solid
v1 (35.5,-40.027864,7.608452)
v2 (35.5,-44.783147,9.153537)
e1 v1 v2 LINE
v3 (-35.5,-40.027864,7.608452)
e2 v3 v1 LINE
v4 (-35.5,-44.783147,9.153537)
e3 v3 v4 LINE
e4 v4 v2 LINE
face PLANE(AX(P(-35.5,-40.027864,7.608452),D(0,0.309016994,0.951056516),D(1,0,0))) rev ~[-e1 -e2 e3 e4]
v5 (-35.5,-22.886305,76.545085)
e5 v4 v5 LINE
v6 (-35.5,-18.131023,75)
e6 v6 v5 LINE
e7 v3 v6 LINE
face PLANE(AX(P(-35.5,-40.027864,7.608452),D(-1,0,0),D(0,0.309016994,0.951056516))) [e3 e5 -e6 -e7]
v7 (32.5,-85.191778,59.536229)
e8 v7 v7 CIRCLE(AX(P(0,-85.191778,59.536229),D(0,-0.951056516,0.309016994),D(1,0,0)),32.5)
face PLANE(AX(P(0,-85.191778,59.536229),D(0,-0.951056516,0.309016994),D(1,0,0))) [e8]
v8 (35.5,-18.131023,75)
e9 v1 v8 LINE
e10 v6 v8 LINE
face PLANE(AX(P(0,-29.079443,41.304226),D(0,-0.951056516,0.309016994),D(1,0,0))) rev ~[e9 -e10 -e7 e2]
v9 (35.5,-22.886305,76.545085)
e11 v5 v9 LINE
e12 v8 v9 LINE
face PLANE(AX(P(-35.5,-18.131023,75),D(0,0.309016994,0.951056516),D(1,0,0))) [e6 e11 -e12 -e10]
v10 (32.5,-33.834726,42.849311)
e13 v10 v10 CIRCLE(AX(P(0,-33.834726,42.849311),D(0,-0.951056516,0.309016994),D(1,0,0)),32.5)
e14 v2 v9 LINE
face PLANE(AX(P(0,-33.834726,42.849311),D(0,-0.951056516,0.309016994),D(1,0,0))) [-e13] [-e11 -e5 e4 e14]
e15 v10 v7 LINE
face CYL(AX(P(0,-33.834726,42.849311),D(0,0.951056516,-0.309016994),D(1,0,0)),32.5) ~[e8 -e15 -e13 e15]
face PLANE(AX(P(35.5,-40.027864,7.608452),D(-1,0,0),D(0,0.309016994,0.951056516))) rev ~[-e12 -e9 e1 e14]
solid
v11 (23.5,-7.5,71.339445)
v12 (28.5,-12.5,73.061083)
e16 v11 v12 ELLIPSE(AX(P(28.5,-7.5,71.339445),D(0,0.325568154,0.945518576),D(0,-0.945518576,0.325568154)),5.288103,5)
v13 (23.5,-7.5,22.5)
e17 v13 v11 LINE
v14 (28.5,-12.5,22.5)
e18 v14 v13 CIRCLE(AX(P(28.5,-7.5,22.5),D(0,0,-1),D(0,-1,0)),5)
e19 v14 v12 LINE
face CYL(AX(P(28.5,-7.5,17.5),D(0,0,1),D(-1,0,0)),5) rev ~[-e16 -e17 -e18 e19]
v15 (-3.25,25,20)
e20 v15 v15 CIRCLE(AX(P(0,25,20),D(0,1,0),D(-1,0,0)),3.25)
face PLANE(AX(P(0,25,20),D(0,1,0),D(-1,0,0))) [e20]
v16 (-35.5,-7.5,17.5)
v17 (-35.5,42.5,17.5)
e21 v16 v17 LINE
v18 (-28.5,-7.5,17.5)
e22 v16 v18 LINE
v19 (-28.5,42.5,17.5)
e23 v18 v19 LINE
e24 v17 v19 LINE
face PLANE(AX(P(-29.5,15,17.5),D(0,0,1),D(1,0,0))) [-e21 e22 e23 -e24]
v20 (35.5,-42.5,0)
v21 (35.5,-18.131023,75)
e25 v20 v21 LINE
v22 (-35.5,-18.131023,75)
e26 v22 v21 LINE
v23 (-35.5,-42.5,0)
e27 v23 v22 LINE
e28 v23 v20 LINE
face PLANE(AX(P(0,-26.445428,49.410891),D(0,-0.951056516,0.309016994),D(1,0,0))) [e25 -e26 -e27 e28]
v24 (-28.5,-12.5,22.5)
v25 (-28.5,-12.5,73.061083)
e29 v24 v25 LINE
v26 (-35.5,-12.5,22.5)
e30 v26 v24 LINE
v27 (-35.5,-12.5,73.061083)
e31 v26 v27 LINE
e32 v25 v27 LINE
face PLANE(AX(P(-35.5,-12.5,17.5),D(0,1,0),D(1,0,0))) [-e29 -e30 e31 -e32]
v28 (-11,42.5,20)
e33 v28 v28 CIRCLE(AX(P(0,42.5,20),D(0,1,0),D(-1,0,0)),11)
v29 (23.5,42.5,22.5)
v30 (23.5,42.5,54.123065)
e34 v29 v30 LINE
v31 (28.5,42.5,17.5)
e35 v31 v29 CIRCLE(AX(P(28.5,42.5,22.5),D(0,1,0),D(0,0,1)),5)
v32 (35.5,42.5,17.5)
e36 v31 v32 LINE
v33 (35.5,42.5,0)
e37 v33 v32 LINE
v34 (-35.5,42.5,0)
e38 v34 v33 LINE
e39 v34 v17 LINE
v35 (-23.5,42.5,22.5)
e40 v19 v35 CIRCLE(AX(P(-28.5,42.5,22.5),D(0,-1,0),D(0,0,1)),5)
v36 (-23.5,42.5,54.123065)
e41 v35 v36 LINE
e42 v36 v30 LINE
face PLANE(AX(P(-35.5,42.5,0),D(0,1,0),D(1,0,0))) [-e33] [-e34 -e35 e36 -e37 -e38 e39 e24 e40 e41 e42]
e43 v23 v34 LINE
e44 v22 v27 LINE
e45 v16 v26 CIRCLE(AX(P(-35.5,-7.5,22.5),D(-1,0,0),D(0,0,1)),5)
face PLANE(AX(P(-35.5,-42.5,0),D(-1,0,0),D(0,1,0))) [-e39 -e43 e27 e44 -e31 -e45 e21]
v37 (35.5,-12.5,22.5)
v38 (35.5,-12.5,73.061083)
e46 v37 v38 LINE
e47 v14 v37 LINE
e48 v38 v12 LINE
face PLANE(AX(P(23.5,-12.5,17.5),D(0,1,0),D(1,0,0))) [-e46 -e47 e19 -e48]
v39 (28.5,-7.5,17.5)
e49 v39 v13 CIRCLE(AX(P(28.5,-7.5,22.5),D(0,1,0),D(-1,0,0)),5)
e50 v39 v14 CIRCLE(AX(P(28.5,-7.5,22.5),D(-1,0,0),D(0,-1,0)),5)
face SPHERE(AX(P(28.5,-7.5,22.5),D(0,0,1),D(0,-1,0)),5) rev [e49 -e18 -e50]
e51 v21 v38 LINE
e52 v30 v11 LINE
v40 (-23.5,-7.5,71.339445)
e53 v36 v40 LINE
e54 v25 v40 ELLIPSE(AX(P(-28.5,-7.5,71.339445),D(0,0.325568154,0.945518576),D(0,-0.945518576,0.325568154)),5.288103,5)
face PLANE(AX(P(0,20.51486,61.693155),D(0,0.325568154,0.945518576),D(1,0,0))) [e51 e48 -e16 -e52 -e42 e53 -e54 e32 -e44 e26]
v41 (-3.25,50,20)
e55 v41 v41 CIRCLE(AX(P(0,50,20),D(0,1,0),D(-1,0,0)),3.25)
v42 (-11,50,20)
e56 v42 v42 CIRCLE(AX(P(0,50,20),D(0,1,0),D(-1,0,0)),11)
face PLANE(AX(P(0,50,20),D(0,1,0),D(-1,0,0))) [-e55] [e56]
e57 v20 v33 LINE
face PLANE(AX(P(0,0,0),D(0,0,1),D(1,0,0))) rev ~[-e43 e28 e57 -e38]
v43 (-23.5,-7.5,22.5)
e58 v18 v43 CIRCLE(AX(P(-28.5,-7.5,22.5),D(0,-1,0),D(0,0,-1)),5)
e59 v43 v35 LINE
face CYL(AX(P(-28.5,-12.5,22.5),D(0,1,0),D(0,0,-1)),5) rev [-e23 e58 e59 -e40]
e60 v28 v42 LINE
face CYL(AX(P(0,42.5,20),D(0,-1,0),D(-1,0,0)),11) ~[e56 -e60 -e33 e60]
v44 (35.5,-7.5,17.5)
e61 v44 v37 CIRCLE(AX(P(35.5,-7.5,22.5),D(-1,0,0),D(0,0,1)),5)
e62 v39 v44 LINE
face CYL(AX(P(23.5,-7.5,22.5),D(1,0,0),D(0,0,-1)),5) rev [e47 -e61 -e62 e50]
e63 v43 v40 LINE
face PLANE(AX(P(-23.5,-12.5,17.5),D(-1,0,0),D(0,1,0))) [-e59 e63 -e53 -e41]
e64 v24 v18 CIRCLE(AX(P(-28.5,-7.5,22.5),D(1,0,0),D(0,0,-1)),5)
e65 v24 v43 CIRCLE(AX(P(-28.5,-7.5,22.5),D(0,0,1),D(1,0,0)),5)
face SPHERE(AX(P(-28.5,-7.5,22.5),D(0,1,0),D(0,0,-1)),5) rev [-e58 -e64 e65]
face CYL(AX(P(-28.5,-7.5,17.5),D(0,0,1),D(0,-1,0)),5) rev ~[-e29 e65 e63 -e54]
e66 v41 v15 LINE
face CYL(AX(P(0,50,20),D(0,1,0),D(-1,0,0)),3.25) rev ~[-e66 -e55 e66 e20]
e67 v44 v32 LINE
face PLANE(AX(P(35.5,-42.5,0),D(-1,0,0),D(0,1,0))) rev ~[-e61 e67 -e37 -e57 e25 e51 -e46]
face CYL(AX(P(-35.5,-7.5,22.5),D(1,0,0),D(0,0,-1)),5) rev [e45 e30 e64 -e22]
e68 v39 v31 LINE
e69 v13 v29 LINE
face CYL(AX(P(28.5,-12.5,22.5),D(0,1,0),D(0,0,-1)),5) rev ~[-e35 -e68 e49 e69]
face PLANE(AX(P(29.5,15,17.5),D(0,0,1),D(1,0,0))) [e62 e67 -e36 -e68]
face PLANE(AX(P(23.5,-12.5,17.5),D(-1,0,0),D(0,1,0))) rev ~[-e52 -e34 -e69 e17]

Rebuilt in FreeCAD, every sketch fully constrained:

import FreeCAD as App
import Part
import Sketcher

V = App.Vector
Q = App.Units.Quantity


def edges_at(feature, points):
    """Names of the edges that pass closest to the given points."""
    edges = feature.Shape.Edges
    near = lambda p: min(range(len(edges)), key=lambda i: edges[i].distToShape(Part.Vertex(*p))[0])
    return sorted({f"Edge{near(p) + 1}" for p in points})

doc = App.newDocument("Part")
params = doc.addObject("Spreadsheet::Sheet", "Params")
for row, (alias, value) in enumerate([
    ("sketch1_width", "71 mm"),
    ("sketch1_height", "85 mm"),
    ("pad1_length", "75 mm"),
    ("sketch2_width", "71 mm"),
    ("sketch3_width", "71 mm"),
    ("sketch4_width", "12 mm"),
    ("sketch4_height", "55 mm"),
    ("fillet_radius", "5 mm"),
    ("sketch5_diameter", "22 mm"),
    ("pad2_length", "7.5 mm"),
    ("sketch6_diameter", "6.5 mm"),
    ("pocket4_length", "25 mm"),
    ("sketch7_width", "71 mm"),
    ("pad3_length", "5 mm"),
    ("sketch8_diameter", "65 mm"),
    ("pad4_length", "54 mm"),
], start=1):
    params.set(f"A{row}", alias)
    params.set(f"B{row}", "=" + value)
    params.setAlias(f"B{row}", alias)

body = doc.addObject("PartDesign::Body", "Body")

# Sketch on XY plane
sketch1 = doc.addObject("Sketcher::SketchObject", "Sketch")
body.addObject(sketch1)
sketch1.AttachmentSupport = (doc.XY_Plane, [""])
sketch1.MapMode = "FlatFace"
sketch1.addGeometry([
    Part.LineSegment(V(-36, 42, 0), V(-36, -42, 0)),
    Part.LineSegment(V(-36, -42, 0), V(36, -42, 0)),
    Part.LineSegment(V(36, -42, 0), V(36, 42, 0)),
    Part.LineSegment(V(36, 42, 0), V(-36, 42, 0)),
], False)
sketch1.addConstraint([
    Sketcher.Constraint("Coincident", 0, 2, 1, 1),
    Sketcher.Constraint("Coincident", 1, 2, 2, 1),
    Sketcher.Constraint("Coincident", 2, 2, 3, 1),
    Sketcher.Constraint("Coincident", 3, 2, 0, 1),
    Sketcher.Constraint("Vertical", 0),
    Sketcher.Constraint("Horizontal", 1),
    Sketcher.Constraint("Vertical", 2),
    Sketcher.Constraint("Horizontal", 3),
    Sketcher.Constraint("Symmetric", 0, 2, 2, 2, -1, 1),
    Sketcher.Constraint("DistanceX", 1, 1, 1, 2, Q("71 mm")),
    Sketcher.Constraint("DistanceY", 0, 2, 0, 1, Q("85 mm")),
])
sketch1.setExpression("Constraints[9]", "Params.sketch1_width")
sketch1.setExpression("Constraints[10]", "Params.sketch1_height")
pad1 = doc.addObject("PartDesign::Pad", "Pad")
body.addObject(pad1)
pad1.Profile = sketch1
pad1.setExpression("Length", "Params.pad1_length")

# Sketch on an angled plane
sketch2 = doc.addObject("Sketcher::SketchObject", "Sketch001")
body.addObject(sketch2)
sketch2.Placement = App.Placement(V(0, -38.441611, 12.490437), App.Rotation(V(1, 0, 0), V(0, 0.309016994, 0.951056516), V(0, -0.951056516, 0.309016994), "ZXY"))
sketch2.addGeometry([
    Part.LineSegment(V(-36, 91, 0), V(-36, -13, 0)),
    Part.LineSegment(V(-36, -13, 0), V(36, -13, 0)),
    Part.LineSegment(V(36, -13, 0), V(36, 91, 0)),
    Part.LineSegment(V(36, 91, 0), V(-36, 91, 0)),
], False)
sketch2.addConstraint([
    Sketcher.Constraint("Coincident", 0, 2, 1, 1),
    Sketcher.Constraint("Coincident", 1, 2, 2, 1),
    Sketcher.Constraint("Coincident", 2, 2, 3, 1),
    Sketcher.Constraint("Coincident", 3, 2, 0, 1),
    Sketcher.Constraint("Vertical", 0),
    Sketcher.Constraint("Horizontal", 1),
    Sketcher.Constraint("Vertical", 2),
    Sketcher.Constraint("Horizontal", 3),
    Sketcher.Constraint("DistanceX", 1, 1, 1, 2, Q("71 mm")),
    Sketcher.Constraint("DistanceX", 0, 2, -1, 1, Q("35.5 mm")),
    Sketcher.Constraint("DistanceY", 0, 2, 0, 1, Q("103.907371 mm")),
    Sketcher.Constraint("DistanceY", -1, 1, 2, 2, Q("90.774149 mm")),
])
sketch2.setExpression("Constraints[8]", "Params.sketch2_width")
pocket1 = doc.addObject("PartDesign::Pocket", "Pocket")
body.addObject(pocket1)
pocket1.Profile = sketch2
pocket1.Type = "ThroughAll"
pocket1.Reversed = True

# Sketch on an angled plane
sketch3 = doc.addObject("Sketcher::SketchObject", "Sketch002")
body.addObject(sketch3)
sketch3.Placement = App.Placement(V(0, 21.165514, 61.469117), App.Rotation(V(1, 0, 0), V(0, 0.945518576, -0.325568154), V(0, 0.325568154, 0.945518576), "ZXY"))
sketch3.addGeometry([
    Part.LineSegment(V(-36, 40, 0), V(-36, -42, 0)),
    Part.LineSegment(V(-36, -42, 0), V(36, -42, 0)),
    Part.LineSegment(V(36, -42, 0), V(36, 40, 0)),
    Part.LineSegment(V(36, 40, 0), V(-36, 40, 0)),
], False)
sketch3.addConstraint([
    Sketcher.Constraint("Coincident", 0, 2, 1, 1),
    Sketcher.Constraint("Coincident", 1, 2, 2, 1),
    Sketcher.Constraint("Coincident", 2, 2, 3, 1),
    Sketcher.Constraint("Coincident", 3, 2, 0, 1),
    Sketcher.Constraint("Vertical", 0),
    Sketcher.Constraint("Horizontal", 1),
    Sketcher.Constraint("Vertical", 2),
    Sketcher.Constraint("Horizontal", 3),
    Sketcher.Constraint("DistanceX", 1, 1, 1, 2, Q("71 mm")),
    Sketcher.Constraint("DistanceX", 0, 2, -1, 1, Q("35.5 mm")),
    Sketcher.Constraint("DistanceY", 0, 2, 0, 1, Q("81.74537 mm")),
    Sketcher.Constraint("DistanceY", 0, 2, -1, 1, Q("41.56083 mm")),
])
sketch3.setExpression("Constraints[8]", "Params.sketch3_width")
pocket2 = doc.addObject("PartDesign::Pocket", "Pocket001")
body.addObject(pocket2)
pocket2.Profile = sketch3
pocket2.Type = "ThroughAll"
pocket2.Reversed = True

# Sketch on XY plane
sketch4 = doc.addObject("Sketcher::SketchObject", "Sketch003")
body.addObject(sketch4)
sketch4.AttachmentSupport = (doc.XY_Plane, [""])
sketch4.MapMode = "FlatFace"
sketch4.AttachmentOffset = App.Placement(V(0, 0, 17.5), App.Rotation())
sketch4.addGeometry([
    Part.LineSegment(V(-36, 42, 0), V(-36, -12, 0)),  # 0
    Part.LineSegment(V(-36, -12, 0), V(-24, -12, 0)),  # 1
    Part.LineSegment(V(-24, -12, 0), V(-24, 42, 0)),  # 2
    Part.LineSegment(V(-24, 42, 0), V(-36, 42, 0)),  # 3
    Part.LineSegment(V(24, 42, 0), V(24, -12, 0)),  # 4
    Part.LineSegment(V(24, -12, 0), V(36, -12, 0)),  # 5
    Part.LineSegment(V(36, -12, 0), V(36, 42, 0)),  # 6
    Part.LineSegment(V(36, 42, 0), V(24, 42, 0)),  # 7
], False)
sketch4.addConstraint([
    Sketcher.Constraint("Coincident", 0, 2, 1, 1),
    Sketcher.Constraint("Coincident", 1, 2, 2, 1),
    Sketcher.Constraint("Coincident", 2, 2, 3, 1),
    Sketcher.Constraint("Coincident", 3, 2, 0, 1),
    Sketcher.Constraint("Coincident", 4, 2, 5, 1),
    Sketcher.Constraint("Coincident", 5, 2, 6, 1),
    Sketcher.Constraint("Coincident", 6, 2, 7, 1),
    Sketcher.Constraint("Coincident", 7, 2, 4, 1),
    Sketcher.Constraint("Vertical", 0),
    Sketcher.Constraint("Horizontal", 1),
    Sketcher.Constraint("Vertical", 2),
    Sketcher.Constraint("Horizontal", 3),
    Sketcher.Constraint("Vertical", 4),
    Sketcher.Constraint("Horizontal", 5),
    Sketcher.Constraint("Vertical", 6),
    Sketcher.Constraint("Horizontal", 7),
    Sketcher.Constraint("Symmetric", 1, 2, 4, 2, -2),
    Sketcher.Constraint("Symmetric", 3, 2, 6, 2, -2),
    Sketcher.Constraint("DistanceX", 1, 1, 1, 2, Q("12 mm")),
    Sketcher.Constraint("DistanceY", 0, 2, 0, 1, Q("55 mm")),
    Sketcher.Constraint("DistanceX", 1, 2, 4, 2, Q("47 mm")),
    Sketcher.Constraint("DistanceY", 0, 2, -1, 1, Q("12.5 mm")),
])
sketch4.setExpression("Constraints[18]", "Params.sketch4_width")
sketch4.setExpression("Constraints[19]", "Params.sketch4_height")
pocket3 = doc.addObject("PartDesign::Pocket", "Pocket002")
body.addObject(pocket3)
pocket3.Profile = sketch4
pocket3.Type = "ThroughAll"
pocket3.Reversed = True
doc.recompute()

fillet = doc.addObject("PartDesign::Fillet", "Fillet")
body.addObject(fillet)
fillet.Base = (pocket3, edges_at(pocket3, [
    (-23.5, 15, 17.5),
    (-29.5, -12.5, 17.5),
    (-23.5, -12.5, 45.281),
    (23.5, -12.5, 45.281),
    (29.5, -12.5, 17.5),
    (23.5, 15, 17.5),
]))
fillet.setExpression("Radius", "Params.fillet_radius")

# Sketch on XZ plane
sketch5 = doc.addObject("Sketcher::SketchObject", "Sketch004")
body.addObject(sketch5)
sketch5.AttachmentSupport = (doc.XZ_Plane, [""])
sketch5.MapMode = "FlatFace"
sketch5.AttachmentOffset = App.Placement(V(0, 0, -42.5), App.Rotation())
sketch5.addGeometry(Part.Circle(V(0, 20, 0), V(0, 0, 1), 11), False)
sketch5.addConstraint([
    Sketcher.Constraint("PointOnObject", 0, 3, -2),
    Sketcher.Constraint("Diameter", 0, Q("22 mm")),
    Sketcher.Constraint("DistanceY", -1, 1, 0, 3, Q("20 mm")),
])
sketch5.setExpression("Constraints[1]", "Params.sketch5_diameter")
pad2 = doc.addObject("PartDesign::Pad", "Pad001")
body.addObject(pad2)
pad2.Profile = sketch5
pad2.setExpression("Length", "Params.pad2_length")
pad2.Reversed = True

# Sketch on XZ plane
sketch6 = doc.addObject("Sketcher::SketchObject", "Sketch005")
body.addObject(sketch6)
sketch6.AttachmentSupport = (doc.XZ_Plane, [""])
sketch6.MapMode = "FlatFace"
sketch6.AttachmentOffset = App.Placement(V(0, 0, -50), App.Rotation())
sketch6.addGeometry(Part.Circle(V(0, 20, 0), V(0, 0, 1), 3.2), False)
sketch6.addConstraint([
    Sketcher.Constraint("PointOnObject", 0, 3, -2),
    Sketcher.Constraint("Diameter", 0, Q("6.5 mm")),
    Sketcher.Constraint("DistanceY", -1, 1, 0, 3, Q("20 mm")),
])
sketch6.setExpression("Constraints[1]", "Params.sketch6_diameter")
pocket4 = doc.addObject("PartDesign::Pocket", "Pocket003")
body.addObject(pocket4)
pocket4.Profile = sketch6
pocket4.setExpression("Length", "Params.pocket4_length")
pocket4.Reversed = True
body2 = doc.addObject("PartDesign::Body", "Body001")

# Sketch on an angled plane
sketch7 = doc.addObject("Sketcher::SketchObject", "Sketch006")
body2.addObject(sketch7)
sketch7.Placement = App.Placement(V(0, -38.441611, 12.490437), App.Rotation(V(1, 0, 0), V(0, 0.309016994, 0.951056516), V(0, -0.951056516, 0.309016994), "ZXY"))
sketch7.addGeometry([
    Part.LineSegment(V(-36, 66, 0), V(-36, -5, 0)),
    Part.LineSegment(V(-36, -5, 0), V(36, -5, 0)),
    Part.LineSegment(V(36, -5, 0), V(36, 66, 0)),
    Part.LineSegment(V(36, 66, 0), V(-36, 66, 0)),
], False)
sketch7.addConstraint([
    Sketcher.Constraint("Coincident", 0, 2, 1, 1),
    Sketcher.Constraint("Coincident", 1, 2, 2, 1),
    Sketcher.Constraint("Coincident", 2, 2, 3, 1),
    Sketcher.Constraint("Coincident", 3, 2, 0, 1),
    Sketcher.Constraint("Vertical", 0),
    Sketcher.Constraint("Horizontal", 1),
    Sketcher.Constraint("Vertical", 2),
    Sketcher.Constraint("Horizontal", 3),
    Sketcher.Constraint("DistanceX", 1, 1, 1, 2, Q("71 mm")),
    Sketcher.Constraint("DistanceX", 0, 2, -1, 1, Q("35.5 mm")),
    Sketcher.Constraint("DistanceY", 0, 2, 0, 1, Q("70.859667 mm")),
    Sketcher.Constraint("DistanceY", 0, 2, -1, 1, Q("5.133222 mm")),
])
sketch7.setExpression("Constraints[8]", "Params.sketch7_width")
pad3 = doc.addObject("PartDesign::Pad", "Pad002")
body2.addObject(pad3)
pad3.Profile = sketch7
pad3.setExpression("Length", "Params.pad3_length")

# Sketch on an angled plane
sketch8 = doc.addObject("Sketcher::SketchObject", "Sketch007")
body2.addObject(sketch8)
sketch8.Placement = App.Placement(V(0, -43.196894, 14.035522), App.Rotation(V(1, 0, 0), V(0, 0.309016994, 0.951056516), V(0, -0.951056516, 0.309016994), "ZXY"))
sketch8.addGeometry(Part.Circle(V(0, 30, 0), V(0, 0, 1), 32), False)
sketch8.addConstraint([
    Sketcher.Constraint("PointOnObject", 0, 3, -2),
    Sketcher.Constraint("Diameter", 0, Q("65 mm")),
    Sketcher.Constraint("DistanceY", -1, 1, 0, 3, Q("30.296611 mm")),
])
sketch8.setExpression("Constraints[1]", "Params.sketch8_diameter")
pad4 = doc.addObject("PartDesign::Pad", "Pad003")
body2.addObject(pad4)
pad4.Profile = sketch8
pad4.setExpression("Length", "Params.pad4_length")

doc.recompute()
